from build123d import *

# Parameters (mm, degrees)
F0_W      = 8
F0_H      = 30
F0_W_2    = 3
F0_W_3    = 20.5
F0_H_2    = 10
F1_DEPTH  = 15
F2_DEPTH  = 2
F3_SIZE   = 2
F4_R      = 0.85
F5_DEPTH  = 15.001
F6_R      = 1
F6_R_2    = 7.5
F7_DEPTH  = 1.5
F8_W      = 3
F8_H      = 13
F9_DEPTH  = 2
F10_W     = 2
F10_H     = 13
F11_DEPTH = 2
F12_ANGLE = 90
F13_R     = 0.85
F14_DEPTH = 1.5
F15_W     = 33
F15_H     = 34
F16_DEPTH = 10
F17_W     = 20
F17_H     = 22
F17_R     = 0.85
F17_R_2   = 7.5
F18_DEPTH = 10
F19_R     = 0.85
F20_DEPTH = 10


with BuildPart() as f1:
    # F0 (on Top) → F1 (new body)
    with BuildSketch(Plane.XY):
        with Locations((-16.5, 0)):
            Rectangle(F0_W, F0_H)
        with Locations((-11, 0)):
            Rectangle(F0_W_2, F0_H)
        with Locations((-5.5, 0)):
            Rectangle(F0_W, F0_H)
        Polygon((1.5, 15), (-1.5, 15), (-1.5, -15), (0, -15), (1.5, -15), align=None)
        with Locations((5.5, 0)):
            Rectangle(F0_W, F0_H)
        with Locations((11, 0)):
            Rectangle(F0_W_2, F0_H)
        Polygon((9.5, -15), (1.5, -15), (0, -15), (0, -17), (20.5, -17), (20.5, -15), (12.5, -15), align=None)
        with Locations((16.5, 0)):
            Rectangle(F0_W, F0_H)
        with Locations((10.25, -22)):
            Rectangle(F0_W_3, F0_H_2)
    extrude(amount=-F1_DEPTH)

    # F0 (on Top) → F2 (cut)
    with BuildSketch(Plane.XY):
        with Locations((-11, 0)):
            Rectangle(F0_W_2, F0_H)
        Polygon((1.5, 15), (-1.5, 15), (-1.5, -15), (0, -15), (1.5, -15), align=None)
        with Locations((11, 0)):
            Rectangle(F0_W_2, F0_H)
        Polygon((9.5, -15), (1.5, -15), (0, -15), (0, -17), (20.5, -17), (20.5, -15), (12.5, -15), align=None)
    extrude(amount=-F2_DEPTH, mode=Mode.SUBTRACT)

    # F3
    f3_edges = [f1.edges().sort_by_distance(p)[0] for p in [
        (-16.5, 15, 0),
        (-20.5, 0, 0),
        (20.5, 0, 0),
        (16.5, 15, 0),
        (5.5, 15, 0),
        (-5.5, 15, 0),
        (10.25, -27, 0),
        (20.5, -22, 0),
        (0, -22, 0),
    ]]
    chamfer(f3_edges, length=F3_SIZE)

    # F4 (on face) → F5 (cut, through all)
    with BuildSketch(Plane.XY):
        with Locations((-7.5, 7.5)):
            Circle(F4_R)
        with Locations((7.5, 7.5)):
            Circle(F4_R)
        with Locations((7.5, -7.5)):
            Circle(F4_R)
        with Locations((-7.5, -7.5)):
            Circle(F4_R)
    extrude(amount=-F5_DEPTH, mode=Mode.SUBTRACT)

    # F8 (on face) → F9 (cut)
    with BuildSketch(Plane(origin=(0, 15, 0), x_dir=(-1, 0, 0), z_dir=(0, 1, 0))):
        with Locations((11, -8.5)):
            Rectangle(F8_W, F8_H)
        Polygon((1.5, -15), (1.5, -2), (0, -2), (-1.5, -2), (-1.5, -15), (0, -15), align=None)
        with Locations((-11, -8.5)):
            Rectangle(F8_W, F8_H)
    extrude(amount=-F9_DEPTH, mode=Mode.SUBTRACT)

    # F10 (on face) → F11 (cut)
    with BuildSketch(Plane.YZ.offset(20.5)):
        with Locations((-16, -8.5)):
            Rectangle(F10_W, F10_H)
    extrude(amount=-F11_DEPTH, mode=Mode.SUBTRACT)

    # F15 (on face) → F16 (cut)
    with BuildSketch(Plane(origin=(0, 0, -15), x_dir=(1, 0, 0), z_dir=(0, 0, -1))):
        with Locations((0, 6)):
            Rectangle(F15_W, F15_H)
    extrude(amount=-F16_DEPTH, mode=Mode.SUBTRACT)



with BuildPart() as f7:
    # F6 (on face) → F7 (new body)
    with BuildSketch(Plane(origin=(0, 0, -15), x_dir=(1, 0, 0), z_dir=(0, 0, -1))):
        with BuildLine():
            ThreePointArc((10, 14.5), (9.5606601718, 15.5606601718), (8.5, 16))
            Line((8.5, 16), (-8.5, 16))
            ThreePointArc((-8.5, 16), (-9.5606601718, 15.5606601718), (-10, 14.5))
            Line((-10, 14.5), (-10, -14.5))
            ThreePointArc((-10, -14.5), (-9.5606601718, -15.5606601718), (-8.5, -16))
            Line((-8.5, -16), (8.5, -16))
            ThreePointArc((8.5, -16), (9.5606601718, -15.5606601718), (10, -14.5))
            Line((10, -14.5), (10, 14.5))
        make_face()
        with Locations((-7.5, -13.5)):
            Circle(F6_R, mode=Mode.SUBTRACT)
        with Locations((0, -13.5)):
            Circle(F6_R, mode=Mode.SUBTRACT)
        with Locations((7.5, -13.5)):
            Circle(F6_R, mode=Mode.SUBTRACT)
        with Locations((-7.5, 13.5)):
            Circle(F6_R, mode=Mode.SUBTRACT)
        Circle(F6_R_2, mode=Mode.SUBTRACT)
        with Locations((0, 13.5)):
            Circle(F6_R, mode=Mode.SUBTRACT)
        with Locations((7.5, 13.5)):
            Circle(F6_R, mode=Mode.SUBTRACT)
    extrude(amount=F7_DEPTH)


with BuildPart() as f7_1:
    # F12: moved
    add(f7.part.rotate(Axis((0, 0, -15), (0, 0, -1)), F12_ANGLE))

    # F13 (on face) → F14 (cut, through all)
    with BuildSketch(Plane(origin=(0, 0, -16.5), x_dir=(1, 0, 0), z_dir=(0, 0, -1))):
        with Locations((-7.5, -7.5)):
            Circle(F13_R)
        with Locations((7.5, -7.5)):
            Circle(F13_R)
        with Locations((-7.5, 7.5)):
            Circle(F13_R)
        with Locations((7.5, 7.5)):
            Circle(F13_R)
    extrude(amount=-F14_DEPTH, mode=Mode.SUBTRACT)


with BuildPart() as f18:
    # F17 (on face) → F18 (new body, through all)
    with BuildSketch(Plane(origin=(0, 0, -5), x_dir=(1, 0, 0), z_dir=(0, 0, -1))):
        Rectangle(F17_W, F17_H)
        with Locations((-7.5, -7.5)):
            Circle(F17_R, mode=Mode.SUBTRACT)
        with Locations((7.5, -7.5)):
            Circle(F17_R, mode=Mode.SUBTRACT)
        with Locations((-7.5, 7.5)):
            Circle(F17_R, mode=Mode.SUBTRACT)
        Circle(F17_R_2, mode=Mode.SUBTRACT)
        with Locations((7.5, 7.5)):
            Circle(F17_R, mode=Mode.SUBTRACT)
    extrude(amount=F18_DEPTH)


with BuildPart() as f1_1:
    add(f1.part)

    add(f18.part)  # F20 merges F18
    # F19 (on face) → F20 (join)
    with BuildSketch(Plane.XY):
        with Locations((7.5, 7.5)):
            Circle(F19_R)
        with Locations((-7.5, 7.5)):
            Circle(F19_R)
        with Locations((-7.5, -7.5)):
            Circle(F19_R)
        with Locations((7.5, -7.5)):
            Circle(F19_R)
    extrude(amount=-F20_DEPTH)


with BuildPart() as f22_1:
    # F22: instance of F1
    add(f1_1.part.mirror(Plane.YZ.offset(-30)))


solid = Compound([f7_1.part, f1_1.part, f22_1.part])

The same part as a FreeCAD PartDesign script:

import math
import FreeCAD as App
import Part
import Sketcher

V = App.Vector
Q = App.Units.Quantity


def edges_at(feature, points):
    """Names of the edges that pass closest to the given points."""
    edges = feature.Shape.Edges
    near = lambda p: min(range(len(edges)), key=lambda i: edges[i].distToShape(Part.Vertex(*p))[0])
    return sorted({f"Edge{near(p) + 1}" for p in points})


def add_polygon(sketch, points):
    """Adds a closed chain of lines whose ends are joined by coincident constraints."""
    first, n = sketch.GeometryCount, len(points)
    for a, b in zip(points, points[1:] + points[:1]):
        sketch.addGeometry(Part.LineSegment(App.Vector(*a, 0), App.Vector(*b, 0)), False)
    for i in range(n):
        sketch.addConstraint(Sketcher.Constraint("Coincident", first + i, 2, first + (i + 1) % n, 1))

doc = App.newDocument("Part")
params = doc.addObject("Spreadsheet::Sheet", "Params")
for row, (alias, value) in enumerate([
    ("sketch1_width", "41 mm"),
    ("sketch1_height", "30 mm"),
    ("sketch1_height2", "12 mm"),
    ("pad1_length", "15 mm"),
    ("sketch2_width", "3 mm"),
    ("sketch2_width2", "8 mm"),
    ("sketch2_height", "30 mm"),
    ("sketch2_height2", "2 mm"),
    ("pocket1_length", "2 mm"),
    ("chamfer_size", "2 mm"),
    ("sketch3_diameter", "1.7 mm"),
    ("sketch4_width", "3 mm"),
    ("sketch4_height", "13 mm"),
    ("pocket3_length", "2 mm"),
    ("sketch5_width", "2 mm"),
    ("sketch5_height", "13 mm"),
    ("pocket4_length", "2 mm"),
    ("sketch6_width", "33 mm"),
    ("sketch6_height", "34 mm"),
    ("pocket5_length", "10 mm"),
    ("sketch7_diameter", "2 mm"),
    ("sketch7_diameter2", "15 mm"),
    ("sketch7_radius", "1.5 mm"),
    ("sketch7_width", "17 mm"),
    ("sketch7_height", "29 mm"),
    ("pad2_length", "1.5 mm"),
    ("sketch8_diameter", "1.7 mm"),
    ("sketch9_diameter", "15 mm"),
    ("sketch9_diameter2", "1.7 mm"),
    ("sketch9_width", "20 mm"),
    ("sketch9_height", "22 mm"),
    ("pad3_length", "10 mm"),
    ("sketch10_diameter", "1.7 mm"),
    ("pad4_length", "10 mm"),
], start=1):
    params.set(f"A{row}", alias)
    params.set(f"B{row}", "=" + value)
    params.setAlias(f"B{row}", alias)

body = doc.addObject("PartDesign::Body", "Body")

# Sketch on XY plane
sketch1 = body.newObject("Sketcher::SketchObject", "Sketch")
sketch1.AttachmentSupport = (doc.getObject("XY_Plane"), [""])
sketch1.MapMode = "FlatFace"
add_polygon(sketch1, [(-20.5, 15), (-20.5, -15), (0, -15), (0, -27), (20.5, -27), (20.5, 15)])  # lines 0-5
sketch1.addConstraint(Sketcher.Constraint("Vertical", 0))
sketch1.addConstraint(Sketcher.Constraint("Horizontal", 1))
sketch1.addConstraint(Sketcher.Constraint("Vertical", 2))
sketch1.addConstraint(Sketcher.Constraint("Horizontal", 3))
sketch1.addConstraint(Sketcher.Constraint("Vertical", 4))
sketch1.addConstraint(Sketcher.Constraint("Horizontal", 5))
sketch1.addConstraint(Sketcher.Constraint("Symmetric", 0, 2, 4, 2, -1, 1))
sketch1.addConstraint(Sketcher.Constraint("PointOnObject", 1, 2, -2))
sketch1.addConstraint(Sketcher.Constraint("DistanceX", 5, 2, 5, 1, Q("41 mm")))
sketch1.addConstraint(Sketcher.Constraint("DistanceY", 0, 2, 0, 1, Q("30 mm")))
sketch1.addConstraint(Sketcher.Constraint("DistanceY", 2, 2, 2, 1, Q("12 mm")))
sketch1.setExpression("Constraints[14]", "Params.sketch1_width")
sketch1.setExpression("Constraints[15]", "Params.sketch1_height")
sketch1.setExpression("Constraints[16]", "Params.sketch1_height2")
pad1 = body.newObject("PartDesign::Pad", "Pad")
pad1.Profile = sketch1
pad1.setExpression("Length", "Params.pad1_length")
pad1.Reversed = True

# Sketch on XY plane
sketch2 = body.newObject("Sketcher::SketchObject", "Sketch001")
sketch2.AttachmentSupport = (doc.getObject("XY_Plane"), [""])
sketch2.MapMode = "FlatFace"
add_polygon(sketch2, [(-12.5, 15), (-12.5, -15), (-9.5, -15), (-9.5, 15)])  # lines 0-3
add_polygon(sketch2, [(1.5, 15), (-1.5, 15), (-1.5, -15), (0, -15), (0, -17), (20.5, -17), (20.5, -15), (12.5, -15), (12.5, 15), (9.5, 15), (9.5, -15), (1.5, -15)])  # lines 4-15
sketch2.addConstraint(Sketcher.Constraint("Vertical", 0))
sketch2.addConstraint(Sketcher.Constraint("Horizontal", 1))
sketch2.addConstraint(Sketcher.Constraint("Vertical", 2))
sketch2.addConstraint(Sketcher.Constraint("Horizontal", 3))
sketch2.addConstraint(Sketcher.Constraint("Horizontal", 4))
sketch2.addConstraint(Sketcher.Constraint("Vertical", 5))
sketch2.addConstraint(Sketcher.Constraint("Horizontal", 6))
sketch2.addConstraint(Sketcher.Constraint("Vertical", 7))
sketch2.addConstraint(Sketcher.Constraint("Horizontal", 8))
sketch2.addConstraint(Sketcher.Constraint("Vertical", 9))
sketch2.addConstraint(Sketcher.Constraint("Horizontal", 10))
sketch2.addConstraint(Sketcher.Constraint("Vertical", 11))
sketch2.addConstraint(Sketcher.Constraint("Horizontal", 12))
sketch2.addConstraint(Sketcher.Constraint("Vertical", 13))
sketch2.addConstraint(Sketcher.Constraint("Horizontal", 14))
sketch2.addConstraint(Sketcher.Constraint("Vertical", 15))
sketch2.addConstraint(Sketcher.Constraint("Symmetric", 3, 2, 10, 2, -1, 1))
sketch2.addConstraint(Sketcher.Constraint("Symmetric", 1, 2, 12, 2, -1, 1))
sketch2.addConstraint(Sketcher.Constraint("Symmetric", 4, 2, 14, 2, -1, 1))
sketch2.addConstraint(Sketcher.Constraint("PointOnObject", 6, 2, -2))
sketch2.addConstraint(Sketcher.Constraint("Horizontal", 3, 2, 4, 2))
sketch2.addConstraint(Sketcher.Constraint("Horizontal", 1, 2, 5, 2))
sketch2.addConstraint(Sketcher.Constraint("Horizontal", 6, 2, 9, 2))
sketch2.addConstraint(Sketcher.Constraint("Equal", 3, 4))
sketch2.addConstraint(Sketcher.Constraint("Equal", 10, 14))
sketch2.addConstraint(Sketcher.Constraint("DistanceX", 1, 1, 1, 2, Q("3 mm")))
sketch2.addConstraint(Sketcher.Constraint("DistanceX", 10, 2, 10, 1, Q("8 mm")))
sketch2.addConstraint(Sketcher.Constraint("DistanceY", 0, 2, 0, 1, Q("30 mm")))
sketch2.addConstraint(Sketcher.Constraint("DistanceY", 7, 2, 7, 1, Q("2 mm")))
sketch2.setExpression("Constraints[41]", "Params.sketch2_width")
sketch2.setExpression("Constraints[42]", "Params.sketch2_width2")
sketch2.setExpression("Constraints[43]", "Params.sketch2_height")
sketch2.setExpression("Constraints[44]", "Params.sketch2_height2")
pocket1 = body.newObject("PartDesign::Pocket", "Pocket")
pocket1.Profile = sketch2
pocket1.setExpression("Length", "Params.pocket1_length")
doc.recompute()

chamfer = body.newObject("PartDesign::Chamfer", "Chamfer")
chamfer.Base = (pocket1, edges_at(pocket1, [
    (-16.5, 15, 0),
    (-20.5, 0, 0),
    (20.5, 0, 0),
    (16.5, 15, 0),
    (5.5, 15, 0),
    (-5.5, 15, 0),
    (10.25, -27, 0),
    (20.5, -22, 0),
    (0, -22, 0),
]))
chamfer.setExpression("Size", "Params.chamfer_size")

# Sketch on XY plane
sketch3 = body.newObject("Sketcher::SketchObject", "Sketch002")
sketch3.AttachmentSupport = (doc.getObject("XY_Plane"), [""])
sketch3.MapMode = "FlatFace"
sketch3.addGeometry(Part.Circle(V(-7.5, 7.5, 0), V(0, 0, 1), 0.85), False)
sketch3.addGeometry(Part.Circle(V(7.5, 7.5, 0), V(0, 0, 1), 0.85), False)
sketch3.addGeometry(Part.Circle(V(7.5, -7.5, 0), V(0, 0, 1), 0.85), False)
sketch3.addGeometry(Part.Circle(V(-7.5, -7.5, 0), V(0, 0, 1), 0.85), False)
sketch3.addConstraint(Sketcher.Constraint("Equal", 0, 1))
sketch3.addConstraint(Sketcher.Constraint("Equal", 1, 2))
sketch3.addConstraint(Sketcher.Constraint("Equal", 2, 3))
sketch3.addConstraint(Sketcher.Constraint("Symmetric", 0, 3, 2, 3, -1, 1))
sketch3.addConstraint(Sketcher.Constraint("Symmetric", 1, 3, 3, 3, -1, 1))
sketch3.addConstraint(Sketcher.Constraint("Symmetric", 0, 3, 1, 3, -2))
sketch3.addConstraint(Sketcher.Constraint("Diameter", 0, Q("1.7 mm")))
sketch3.addConstraint(Sketcher.Constraint("DistanceX", 0, 3, 1, 3, Q("15 mm")))
sketch3.addConstraint(Sketcher.Constraint("DistanceY", 2, 3, 1, 3, Q("15 mm")))
sketch3.setExpression("Constraints[6]", "Params.sketch3_diameter")
pocket2 = body.newObject("PartDesign::Pocket", "Pocket001")
pocket2.Profile = sketch3
pocket2.Type = "ThroughAll"

# Sketch on XZ plane
sketch4 = body.newObject("Sketcher::SketchObject", "Sketch003")
sketch4.AttachmentSupport = (doc.getObject("XZ_Plane"), [""])
sketch4.MapMode = "FlatFace"
sketch4.AttachmentOffset = App.Placement(V(0, 0, -15), App.Rotation())
add_polygon(sketch4, [(-9.5, -2), (-9.5, -15), (-12.5, -15), (-12.5, -2)])  # lines 0-3
add_polygon(sketch4, [(-1.5, -15), (-1.5, -2), (1.5, -2), (1.5, -15)])  # lines 4-7
add_polygon(sketch4, [(12.5, -2), (12.5, -15), (9.5, -15), (9.5, -2)])  # lines 8-11
sketch4.addConstraint(Sketcher.Constraint("Vertical", 0))
sketch4.addConstraint(Sketcher.Constraint("Horizontal", 1))
sketch4.addConstraint(Sketcher.Constraint("Vertical", 2))
sketch4.addConstraint(Sketcher.Constraint("Horizontal", 3))
sketch4.addConstraint(Sketcher.Constraint("Vertical", 4))
sketch4.addConstraint(Sketcher.Constraint("Horizontal", 5))
sketch4.addConstraint(Sketcher.Constraint("Vertical", 6))
sketch4.addConstraint(Sketcher.Constraint("Horizontal", 7))
sketch4.addConstraint(Sketcher.Constraint("Vertical", 8))
sketch4.addConstraint(Sketcher.Constraint("Horizontal", 9))
sketch4.addConstraint(Sketcher.Constraint("Vertical", 10))
sketch4.addConstraint(Sketcher.Constraint("Horizontal", 11))
sketch4.addConstraint(Sketcher.Constraint("Symmetric", 1, 2, 8, 2, -2))
sketch4.addConstraint(Sketcher.Constraint("Symmetric", 3, 2, 10, 2, -2))
sketch4.addConstraint(Sketcher.Constraint("Horizontal", 3, 2, 4, 2))
sketch4.addConstraint(Sketcher.Constraint("Horizontal", 1, 2, 6, 2))
sketch4.addConstraint(Sketcher.Constraint("Equal", 3, 5))
sketch4.addConstraint(Sketcher.Constraint("DistanceX", 1, 2, 1, 1, Q("3 mm")))
sketch4.addConstraint(Sketcher.Constraint("DistanceY", 0, 2, 0, 1, Q("13 mm")))
sketch4.addConstraint(Sketcher.Constraint("DistanceY", 0, 2, -1, 1, Q("15 mm")))
sketch4.addConstraint(Sketcher.Constraint("DistanceX", 3, 2, 4, 2, Q("8 mm")))
sketch4.addConstraint(Sketcher.Constraint("DistanceX", 6, 2, 8, 2, Q("11 mm")))
sketch4.setExpression("Constraints[29]", "Params.sketch4_width")
sketch4.setExpression("Constraints[30]", "Params.sketch4_height")
pocket3 = body.newObject("PartDesign::Pocket", "Pocket002")
pocket3.Profile = sketch4
pocket3.setExpression("Length", "Params.pocket3_length")
pocket3.Reversed = True

# Sketch on YZ plane
sketch5 = body.newObject("Sketcher::SketchObject", "Sketch004")
sketch5.AttachmentSupport = (doc.getObject("YZ_Plane"), [""])
sketch5.MapMode = "FlatFace"
sketch5.AttachmentOffset = App.Placement(V(0, 0, 20.5), App.Rotation())
add_polygon(sketch5, [(-17, -2), (-17, -15), (-15, -15), (-15, -2)])  # lines 0-3
sketch5.addConstraint(Sketcher.Constraint("Vertical", 0))
sketch5.addConstraint(Sketcher.Constraint("Horizontal", 1))
sketch5.addConstraint(Sketcher.Constraint("Vertical", 2))
sketch5.addConstraint(Sketcher.Constraint("Horizontal", 3))
sketch5.addConstraint(Sketcher.Constraint("DistanceX", 1, 1, 1, 2, Q("2 mm")))
sketch5.addConstraint(Sketcher.Constraint("DistanceY", 0, 2, 0, 1, Q("13 mm")))
sketch5.addConstraint(Sketcher.Constraint("DistanceX", 0, 2, -1, 1, Q("17 mm")))
sketch5.addConstraint(Sketcher.Constraint("DistanceY", 0, 2, -1, 1, Q("15 mm")))
sketch5.setExpression("Constraints[8]", "Params.sketch5_width")
sketch5.setExpression("Constraints[9]", "Params.sketch5_height")
pocket4 = body.newObject("PartDesign::Pocket", "Pocket003")
pocket4.Profile = sketch5
pocket4.setExpression("Length", "Params.pocket4_length")

# Sketch on XY plane
sketch6 = body.newObject("Sketcher::SketchObject", "Sketch005")
sketch6.AttachmentSupport = (doc.getObject("XY_Plane"), [""])
sketch6.MapMode = "FlatFace"
sketch6.AttachmentOffset = App.Placement(V(0, 0, -15), App.Rotation())
add_polygon(sketch6, [(-16.5, -23), (-16.5, 11), (16.5, 11), (16.5, -23)])  # lines 0-3
sketch6.addConstraint(Sketcher.Constraint("Vertical", 0))
sketch6.addConstraint(Sketcher.Constraint("Horizontal", 1))
sketch6.addConstraint(Sketcher.Constraint("Vertical", 2))
sketch6.addConstraint(Sketcher.Constraint("Horizontal", 3))
sketch6.addConstraint(Sketcher.Constraint("DistanceX", 1, 1, 1, 2, Q("33 mm")))
sketch6.addConstraint(Sketcher.Constraint("DistanceY", 0, 1, 0, 2, Q("34 mm")))
sketch6.addConstraint(Sketcher.Constraint("DistanceY", -1, 1, 0, 2, Q("11 mm")))
sketch6.addConstraint(Sketcher.Constraint("DistanceX", 0, 2, -1, 1, Q("16.5 mm")))
sketch6.setExpression("Constraints[8]", "Params.sketch6_width")
sketch6.setExpression("Constraints[9]", "Params.sketch6_height")
pocket5 = body.newObject("PartDesign::Pocket", "Pocket004")
pocket5.Profile = sketch6
pocket5.setExpression("Length", "Params.pocket5_length")
pocket5.Reversed = True
body2 = doc.addObject("PartDesign::Body", "Body001")

# Sketch on XY plane
sketch7 = body2.newObject("Sketcher::SketchObject", "Sketch006")
sketch7.AttachmentSupport = (doc.getObject("XY_Plane001"), [""])
sketch7.MapMode = "FlatFace"
sketch7.AttachmentOffset = App.Placement(V(0, 0, -15), App.Rotation())
sketch7.addGeometry(Part.ArcOfCircle(Part.Circle(V(8.5, -14.5, 0), V(0, 0, 1), 1.5), math.radians(-90), math.radians(0)), False)
sketch7.addGeometry(Part.LineSegment(V(8.5, -16, 0), V(-8.5, -16, 0)), False)
sketch7.addGeometry(Part.ArcOfCircle(Part.Circle(V(-8.5, -14.5, 0), V(0, 0, 1), 1.5), math.radians(180), math.radians(270)), False)
sketch7.addGeometry(Part.LineSegment(V(-10, -14.5, 0), V(-10, 14.5, 0)), False)
sketch7.addGeometry(Part.ArcOfCircle(Part.Circle(V(-8.5, 14.5, 0), V(0, 0, 1), 1.5), math.radians(90), math.radians(180)), False)
sketch7.addGeometry(Part.LineSegment(V(-8.5, 16, 0), V(8.5, 16, 0)), False)
sketch7.addGeometry(Part.ArcOfCircle(Part.Circle(V(8.5, 14.5, 0), V(0, 0, 1), 1.5), math.radians(0), math.radians(90)), False)
sketch7.addGeometry(Part.LineSegment(V(10, 14.5, 0), V(10, -14.5, 0)), False)
sketch7.addGeometry(Part.Circle(V(-7.5, 13.5, 0), V(0, 0, 1), 1), False)
sketch7.addGeometry(Part.Circle(V(0, 13.5, 0), V(0, 0, 1), 1), False)
sketch7.addGeometry(Part.Circle(V(7.5, 13.5, 0), V(0, 0, 1), 1), False)
sketch7.addGeometry(Part.Circle(V(-7.5, -13.5, 0), V(0, 0, 1), 1), False)
sketch7.addGeometry(Part.Circle(V(0, 0, 0), V(0, 0, 1), 7.5), False)
sketch7.addGeometry(Part.Circle(V(0, -13.5, 0), V(0, 0, 1), 1), False)
sketch7.addGeometry(Part.Circle(V(7.5, -13.5, 0), V(0, 0, 1), 1), False)
sketch7.addConstraint(Sketcher.Constraint("Tangent", 0, 1, 1, 1))
sketch7.addConstraint(Sketcher.Constraint("Tangent", 1, 2, 2, 2))
sketch7.addConstraint(Sketcher.Constraint("Tangent", 2, 1, 3, 1))
sketch7.addConstraint(Sketcher.Constraint("Tangent", 3, 2, 4, 2))
sketch7.addConstraint(Sketcher.Constraint("Tangent", 4, 1, 5, 1))
sketch7.addConstraint(Sketcher.Constraint("Tangent", 5, 2, 6, 2))
sketch7.addConstraint(Sketcher.Constraint("Tangent", 6, 1, 7, 1))
sketch7.addConstraint(Sketcher.Constraint("Tangent", 7, 2, 0, 2))
sketch7.addConstraint(Sketcher.Constraint("Horizontal", 1))
sketch7.addConstraint(Sketcher.Constraint("Vertical", 3))
sketch7.addConstraint(Sketcher.Constraint("Horizontal", 5))
sketch7.addConstraint(Sketcher.Constraint("Vertical", 7))
sketch7.addConstraint(Sketcher.Constraint("Coincident", 12, 3, -1, 1))
sketch7.addConstraint(Sketcher.Constraint("Equal", 0, 2))
sketch7.addConstraint(Sketcher.Constraint("Equal", 2, 4))
sketch7.addConstraint(Sketcher.Constraint("Equal", 4, 6))
sketch7.addConstraint(Sketcher.Constraint("Equal", 8, 9))
sketch7.addConstraint(Sketcher.Constraint("Equal", 9, 10))
sketch7.addConstraint(Sketcher.Constraint("Equal", 10, 11))
sketch7.addConstraint(Sketcher.Constraint("Equal", 11, 13))
sketch7.addConstraint(Sketcher.Constraint("Equal", 13, 14))
sketch7.addConstraint(Sketcher.Constraint("Symmetric", 0, 3, 4, 3, -1, 1))
sketch7.addConstraint(Sketcher.Constraint("Symmetric", 10, 3, 11, 3, -1, 1))
sketch7.addConstraint(Sketcher.Constraint("Symmetric", 9, 3, 13, 3, -1, 1))
sketch7.addConstraint(Sketcher.Constraint("Symmetric", 8, 3, 14, 3, -1, 1))
sketch7.addConstraint(Sketcher.Constraint("Symmetric", 8, 3, 10, 3, -2))
sketch7.addConstraint(Sketcher.Constraint("PointOnObject", 9, 3, -2))
sketch7.addConstraint(Sketcher.Constraint("Horizontal", 8, 3, 9, 3))
sketch7.addConstraint(Sketcher.Constraint("Diameter", 8, Q("2 mm")))
sketch7.addConstraint(Sketcher.Constraint("Diameter", 12, Q("15 mm")))
sketch7.addConstraint(Sketcher.Constraint("Radius", 0, Q("1.5 mm")))
sketch7.addConstraint(Sketcher.Constraint("DistanceX", 1, 2, 1, 1, Q("17 mm")))
sketch7.addConstraint(Sketcher.Constraint("DistanceY", 3, 1, 3, 2, Q("29 mm")))
sketch7.addConstraint(Sketcher.Constraint("DistanceX", 4, 3, 8, 3, Q("1 mm")))
sketch7.addConstraint(Sketcher.Constraint("DistanceY", 8, 3, 4, 3, Q("1 mm")))
sketch7.setExpression("Constraints[28]", "Params.sketch7_diameter")
sketch7.setExpression("Constraints[29]", "Params.sketch7_diameter2")
sketch7.setExpression("Constraints[30]", "Params.sketch7_radius")
sketch7.setExpression("Constraints[31]", "Params.sketch7_width")
sketch7.setExpression("Constraints[32]", "Params.sketch7_height")
pad2 = body2.newObject("PartDesign::Pad", "Pad001")
pad2.Profile = sketch7
pad2.setExpression("Length", "Params.pad2_length")
pad2.Reversed = True
body3 = doc.addObject("PartDesign::Body", "Body002")
doc.recompute()

body2.Placement = App.Placement(V(0, 0, 0), App.Rotation(V(0, 0, -1), 90))
boolean = body3.newObject("PartDesign::Boolean", "Boolean")
boolean.Type = "Fuse"
boolean.addObjects([body2])

# Sketch on XY plane
sketch8 = body3.newObject("Sketcher::SketchObject", "Sketch007")
sketch8.AttachmentSupport = (doc.getObject("XY_Plane002"), [""])
sketch8.MapMode = "FlatFace"
sketch8.AttachmentOffset = App.Placement(V(0, 0, -16.5), App.Rotation())
sketch8.addGeometry(Part.Circle(V(-7.5, 7.5, 0), V(0, 0, 1), 0.85), False)
sketch8.addGeometry(Part.Circle(V(7.5, 7.5, 0), V(0, 0, 1), 0.85), False)
sketch8.addGeometry(Part.Circle(V(-7.5, -7.5, 0), V(0, 0, 1), 0.85), False)
sketch8.addGeometry(Part.Circle(V(7.5, -7.5, 0), V(0, 0, 1), 0.85), False)
sketch8.addConstraint(Sketcher.Constraint("Equal", 0, 1))
sketch8.addConstraint(Sketcher.Constraint("Equal", 1, 2))
sketch8.addConstraint(Sketcher.Constraint("Equal", 2, 3))
sketch8.addConstraint(Sketcher.Constraint("Symmetric", 1, 3, 2, 3, -1, 1))
sketch8.addConstraint(Sketcher.Constraint("Symmetric", 0, 3, 3, 3, -1, 1))
sketch8.addConstraint(Sketcher.Constraint("Symmetric", 0, 3, 1, 3, -2))
sketch8.addConstraint(Sketcher.Constraint("Diameter", 0, Q("1.7 mm")))
sketch8.addConstraint(Sketcher.Constraint("DistanceX", 0, 3, 1, 3, Q("15 mm")))
sketch8.addConstraint(Sketcher.Constraint("DistanceY", 2, 3, 0, 3, Q("15 mm")))
sketch8.setExpression("Constraints[6]", "Params.sketch8_diameter")
pocket6 = body3.newObject("PartDesign::Pocket", "Pocket005")
pocket6.Profile = sketch8
pocket6.Type = "ThroughAll"
pocket6.Reversed = True
body4 = doc.addObject("PartDesign::Body", "Body003")

# Sketch on XY plane
sketch9 = body4.newObject("Sketcher::SketchObject", "Sketch008")
sketch9.AttachmentSupport = (doc.getObject("XY_Plane003"), [""])
sketch9.MapMode = "FlatFace"
sketch9.AttachmentOffset = App.Placement(V(0, 0, -5), App.Rotation())
add_polygon(sketch9, [(-10, -11), (-10, 11), (10, 11), (10, -11)])  # lines 0-3
sketch9.addGeometry(Part.Circle(V(-7.5, 7.5, 0), V(0, 0, 1), 0.85), False)  # 4
sketch9.addGeometry(Part.Circle(V(7.5, 7.5, 0), V(0, 0, 1), 0.85), False)  # 5
sketch9.addGeometry(Part.Circle(V(-7.5, -7.5, 0), V(0, 0, 1), 0.85), False)  # 6
sketch9.addGeometry(Part.Circle(V(0, 0, 0), V(0, 0, 1), 7.5), False)  # 7
sketch9.addGeometry(Part.Circle(V(7.5, -7.5, 0), V(0, 0, 1), 0.85), False)  # 8
sketch9.addConstraint(Sketcher.Constraint("Vertical", 0))
sketch9.addConstraint(Sketcher.Constraint("Horizontal", 1))
sketch9.addConstraint(Sketcher.Constraint("Vertical", 2))
sketch9.addConstraint(Sketcher.Constraint("Horizontal", 3))
sketch9.addConstraint(Sketcher.Constraint("Coincident", 7, 3, -1, 1))
sketch9.addConstraint(Sketcher.Constraint("Equal", 4, 5))
sketch9.addConstraint(Sketcher.Constraint("Equal", 5, 6))
sketch9.addConstraint(Sketcher.Constraint("Equal", 6, 8))
sketch9.addConstraint(Sketcher.Constraint("Symmetric", 5, 3, 6, 3, -1, 1))
sketch9.addConstraint(Sketcher.Constraint("Symmetric", 4, 3, 8, 3, -1, 1))
sketch9.addConstraint(Sketcher.Constraint("Symmetric", 0, 2, 2, 2, -1, 1))
sketch9.addConstraint(Sketcher.Constraint("Symmetric", 4, 3, 5, 3, -2))
sketch9.addConstraint(Sketcher.Constraint("Diameter", 7, Q("15 mm")))
sketch9.addConstraint(Sketcher.Constraint("Diameter", 4, Q("1.7 mm")))
sketch9.addConstraint(Sketcher.Constraint("DistanceX", 1, 1, 1, 2, Q("20 mm")))
sketch9.addConstraint(Sketcher.Constraint("DistanceY", 0, 1, 0, 2, Q("22 mm")))
sketch9.addConstraint(Sketcher.Constraint("DistanceX", 4, 3, 5, 3, Q("15 mm")))
sketch9.addConstraint(Sketcher.Constraint("DistanceY", 6, 3, 4, 3, Q("15 mm")))
sketch9.setExpression("Constraints[16]", "Params.sketch9_diameter")
sketch9.setExpression("Constraints[17]", "Params.sketch9_diameter2")
sketch9.setExpression("Constraints[18]", "Params.sketch9_width")
sketch9.setExpression("Constraints[19]", "Params.sketch9_height")
pad3 = body4.newObject("PartDesign::Pad", "Pad002")
pad3.Profile = sketch9
pad3.setExpression("Length", "Params.pad3_length")
pad3.Reversed = True
doc.recompute()

boolean2 = body.newObject("PartDesign::Boolean", "Boolean001")
boolean2.Type = "Fuse"
boolean2.addObjects([body4])

# Sketch on XY plane
sketch10 = body.newObject("Sketcher::SketchObject", "Sketch009")
sketch10.AttachmentSupport = (doc.getObject("XY_Plane"), [""])
sketch10.MapMode = "FlatFace"
sketch10.addGeometry(Part.Circle(V(7.5, 7.5, 0), V(0, 0, 1), 0.85), False)
sketch10.addGeometry(Part.Circle(V(-7.5, 7.5, 0), V(0, 0, 1), 0.85), False)
sketch10.addGeometry(Part.Circle(V(-7.5, -7.5, 0), V(0, 0, 1), 0.85), False)
sketch10.addGeometry(Part.Circle(V(7.5, -7.5, 0), V(0, 0, 1), 0.85), False)
sketch10.addConstraint(Sketcher.Constraint("Equal", 0, 1))
sketch10.addConstraint(Sketcher.Constraint("Equal", 1, 2))
sketch10.addConstraint(Sketcher.Constraint("Equal", 2, 3))
sketch10.addConstraint(Sketcher.Constraint("Symmetric", 0, 3, 2, 3, -1, 1))
sketch10.addConstraint(Sketcher.Constraint("Symmetric", 1, 3, 3, 3, -1, 1))
sketch10.addConstraint(Sketcher.Constraint("Symmetric", 0, 3, 1, 3, -2))
sketch10.addConstraint(Sketcher.Constraint("Diameter", 0, Q("1.7 mm")))
sketch10.addConstraint(Sketcher.Constraint("DistanceX", 1, 3, 0, 3, Q("15 mm")))
sketch10.addConstraint(Sketcher.Constraint("DistanceY", 2, 3, 1, 3, Q("15 mm")))
sketch10.setExpression("Constraints[6]", "Params.sketch10_diameter")
pad4 = body.newObject("PartDesign::Pad", "Pad003")
pad4.Profile = sketch10
pad4.setExpression("Length", "Params.pad4_length")
pad4.Reversed = True
body5 = doc.addObject("PartDesign::Body", "Body004")
doc.recompute()

mirroring = doc.addObject("Part::Mirroring", "Mirroring")
mirroring.Source = body
mirroring.Base = V(-30, 0, 0)
mirroring.Normal = V(1, 0, 0)
body5.BaseFeature = mirroring
doc.recompute()
mirroring.Visibility = False

doc.recompute()
